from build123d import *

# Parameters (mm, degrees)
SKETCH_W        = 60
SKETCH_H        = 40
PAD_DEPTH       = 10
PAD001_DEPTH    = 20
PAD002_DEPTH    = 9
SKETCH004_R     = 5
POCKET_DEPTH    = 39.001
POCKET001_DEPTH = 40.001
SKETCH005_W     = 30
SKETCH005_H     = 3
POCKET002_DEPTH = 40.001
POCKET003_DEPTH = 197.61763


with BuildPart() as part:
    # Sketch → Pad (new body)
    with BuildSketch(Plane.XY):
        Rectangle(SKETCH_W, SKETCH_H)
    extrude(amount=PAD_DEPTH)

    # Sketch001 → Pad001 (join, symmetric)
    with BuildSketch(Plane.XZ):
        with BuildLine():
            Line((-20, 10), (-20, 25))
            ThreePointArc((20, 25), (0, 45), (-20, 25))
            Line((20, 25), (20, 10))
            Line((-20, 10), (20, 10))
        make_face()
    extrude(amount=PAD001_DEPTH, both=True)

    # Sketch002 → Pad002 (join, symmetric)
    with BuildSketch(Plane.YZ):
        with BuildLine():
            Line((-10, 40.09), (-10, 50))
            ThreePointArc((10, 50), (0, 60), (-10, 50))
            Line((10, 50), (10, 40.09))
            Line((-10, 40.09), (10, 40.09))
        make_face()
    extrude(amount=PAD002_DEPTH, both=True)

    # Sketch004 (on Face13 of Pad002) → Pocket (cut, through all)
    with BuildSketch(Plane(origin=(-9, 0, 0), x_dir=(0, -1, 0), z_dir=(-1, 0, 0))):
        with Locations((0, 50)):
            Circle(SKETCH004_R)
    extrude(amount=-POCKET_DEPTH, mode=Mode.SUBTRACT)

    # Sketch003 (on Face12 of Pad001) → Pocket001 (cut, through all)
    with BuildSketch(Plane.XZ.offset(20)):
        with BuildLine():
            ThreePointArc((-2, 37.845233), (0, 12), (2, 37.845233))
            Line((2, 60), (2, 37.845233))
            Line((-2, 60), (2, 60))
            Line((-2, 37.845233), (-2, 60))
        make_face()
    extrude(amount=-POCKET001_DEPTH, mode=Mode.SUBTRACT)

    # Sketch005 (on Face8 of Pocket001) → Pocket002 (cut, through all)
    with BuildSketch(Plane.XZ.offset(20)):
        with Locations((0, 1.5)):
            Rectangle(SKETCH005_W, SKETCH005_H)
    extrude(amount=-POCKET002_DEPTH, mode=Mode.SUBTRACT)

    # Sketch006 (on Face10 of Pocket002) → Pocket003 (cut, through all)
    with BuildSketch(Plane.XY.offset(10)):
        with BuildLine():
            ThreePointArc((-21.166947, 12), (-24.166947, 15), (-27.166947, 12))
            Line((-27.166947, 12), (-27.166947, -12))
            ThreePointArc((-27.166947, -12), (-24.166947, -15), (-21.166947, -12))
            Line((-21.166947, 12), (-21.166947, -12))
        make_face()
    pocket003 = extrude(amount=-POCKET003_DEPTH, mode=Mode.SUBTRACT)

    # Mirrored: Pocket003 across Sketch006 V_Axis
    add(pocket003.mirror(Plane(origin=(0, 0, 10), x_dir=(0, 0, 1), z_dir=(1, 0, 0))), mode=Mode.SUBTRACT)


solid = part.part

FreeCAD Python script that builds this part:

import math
import FreeCAD as App
import Part
import Sketcher
from FreeCAD import Vector


def add_polygon(sketch, points):
    """Adds a closed chain of lines whose ends are joined by coincident constraints."""
    first, n = sketch.GeometryCount, len(points)
    for a, b in zip(points, points[1:] + points[:1]):
        sketch.addGeometry(Part.LineSegment(App.Vector(*a, 0), App.Vector(*b, 0)), False)
    for i in range(n):
        sketch.addConstraint(Sketcher.Constraint("Coincident", first + i, 2, first + (i + 1) % n, 1))

doc = App.newDocument("Part")
body = doc.addObject("PartDesign::Body", "Body")

sketch1 = body.newObject("Sketcher::SketchObject", "Sketch")
sketch1.AttachmentSupport = (doc.getObject("XY_Plane"), [""])
sketch1.MapMode = "FlatFace"
add_polygon(sketch1, [(-30, 20), (-30, -20), (30, -20), (30, 20)])
sketch1.addConstraint(Sketcher.Constraint("Vertical", 0))
sketch1.addConstraint(Sketcher.Constraint("Horizontal", 1))
sketch1.addConstraint(Sketcher.Constraint("Vertical", 2))
sketch1.addConstraint(Sketcher.Constraint("Horizontal", 3))
sketch1.addConstraint(Sketcher.Constraint("Symmetric", 0, 2, 2, 2, -1, 1))
sketch1.addConstraint(Sketcher.Constraint("DistanceX", 1, 1, 1, 2, 60.0))
sketch1.addConstraint(Sketcher.Constraint("DistanceY", 0, 2, 0, 1, 40.0))
pad1 = body.newObject("PartDesign::Pad", "Pad")
pad1.Profile = sketch1
pad1.Length = 10

sketch2 = body.newObject("Sketcher::SketchObject", "Sketch001")
sketch2.AttachmentSupport = (doc.getObject("XZ_Plane"), [""])
sketch2.MapMode = "FlatFace"
sketch2.addGeometry(Part.LineSegment(Vector(-20, 25, 0), Vector(-20, 10, 0)), False)
sketch2.addGeometry(Part.LineSegment(Vector(-20, 10, 0), Vector(20, 10, 0)), False)
sketch2.addGeometry(Part.LineSegment(Vector(20, 10, 0), Vector(20, 25, 0)), False)
sketch2.addGeometry(Part.ArcOfCircle(Part.Circle(Vector(0, 25, 0), Vector(0, 0, 1), 20), math.radians(0), math.radians(180)), False)
sketch2.addConstraint(Sketcher.Constraint("Coincident", 0, 2, 1, 1))
sketch2.addConstraint(Sketcher.Constraint("Coincident", 1, 2, 2, 1))
sketch2.addConstraint(Sketcher.Constraint("Tangent", 2, 2, 3, 1))
sketch2.addConstraint(Sketcher.Constraint("Tangent", 3, 2, 0, 1))
sketch2.addConstraint(Sketcher.Constraint("Vertical", 0))
sketch2.addConstraint(Sketcher.Constraint("Horizontal", 1))
sketch2.addConstraint(Sketcher.Constraint("Vertical", 2))
sketch2.addConstraint(Sketcher.Constraint("PointOnObject", 3, 3, -2))
sketch2.addConstraint(Sketcher.Constraint("Radius", 3, 20.0))
sketch2.addConstraint(Sketcher.Constraint("DistanceY", 0, 2, 0, 1, 15.0))
sketch2.addConstraint(Sketcher.Constraint("DistanceY", -1, 1, 3, 3, 25.0))
pad2 = body.newObject("PartDesign::Pad", "Pad001")
pad2.Profile = sketch2
pad2.Length = 40
pad2.Midplane = True

sketch3 = body.newObject("Sketcher::SketchObject", "Sketch002")
sketch3.AttachmentSupport = (doc.getObject("YZ_Plane"), [""])
sketch3.MapMode = "FlatFace"
sketch3.addGeometry(Part.LineSegment(Vector(-10, 50, 0), Vector(-10, 40.09, 0)), False)
sketch3.addGeometry(Part.LineSegment(Vector(-10, 40.09, 0), Vector(10, 40.09, 0)), False)
sketch3.addGeometry(Part.LineSegment(Vector(10, 40.09, 0), Vector(10, 50, 0)), False)
sketch3.addGeometry(Part.ArcOfCircle(Part.Circle(Vector(0, 50, 0), Vector(0, 0, 1), 10), math.radians(0), math.radians(180)), False)
sketch3.addConstraint(Sketcher.Constraint("Coincident", 0, 2, 1, 1))
sketch3.addConstraint(Sketcher.Constraint("Coincident", 1, 2, 2, 1))
sketch3.addConstraint(Sketcher.Constraint("Tangent", 2, 2, 3, 1))
sketch3.addConstraint(Sketcher.Constraint("Tangent", 3, 2, 0, 1))
sketch3.addConstraint(Sketcher.Constraint("Vertical", 0))
sketch3.addConstraint(Sketcher.Constraint("Horizontal", 1))
sketch3.addConstraint(Sketcher.Constraint("Vertical", 2))
sketch3.addConstraint(Sketcher.Constraint("PointOnObject", 3, 3, -2))
sketch3.addConstraint(Sketcher.Constraint("Radius", 3, 10.0))
sketch3.addConstraint(Sketcher.Constraint("DistanceY", -1, 1, 3, 3, 50.0))
sketch3.addConstraint(Sketcher.Constraint("DistanceY", 0, 2, 0, 1, 9.91))
pad3 = body.newObject("PartDesign::Pad", "Pad002")
pad3.Profile = sketch3
pad3.Length = 18
pad3.Midplane = True

sketch4 = body.newObject("Sketcher::SketchObject", "Sketch003")
sketch4.AttachmentSupport = (doc.getObject("YZ_Plane"), [""])
sketch4.MapMode = "FlatFace"
sketch4.AttachmentOffset = App.Placement(Vector(0, 0, -9), App.Rotation())
sketch4.addGeometry(Part.Circle(Vector(0, 50, 0), Vector(0, 0, 1), 5), False)
sketch4.addConstraint(Sketcher.Constraint("PointOnObject", 0, 3, -2))
sketch4.addConstraint(Sketcher.Constraint("Diameter", 0, 10.0))
sketch4.addConstraint(Sketcher.Constraint("DistanceY", -1, 1, 0, 3, 50.0))
pocket1 = body.newObject("PartDesign::Pocket", "Pocket")
pocket1.Profile = sketch4
pocket1.Type = "ThroughAll"
pocket1.Reversed = True

sketch5 = body.newObject("Sketcher::SketchObject", "Sketch004")
sketch5.AttachmentSupport = (doc.getObject("XZ_Plane"), [""])
sketch5.MapMode = "FlatFace"
sketch5.AttachmentOffset = App.Placement(Vector(0, 0, 20), App.Rotation())
sketch5.addGeometry(Part.ArcOfCircle(Part.Circle(Vector(0, 25, 0), Vector(0, 0, 1), 13), math.radians(98.849883), math.radians(441.150117)), False)
sketch5.addGeometry(Part.LineSegment(Vector(2, 37.845233, 0), Vector(2, 60, 0)), False)
sketch5.addGeometry(Part.LineSegment(Vector(2, 60, 0), Vector(-2, 60, 0)), False)
sketch5.addGeometry(Part.LineSegment(Vector(-2, 60, 0), Vector(-2, 37.845233, 0)), False)
sketch5.addConstraint(Sketcher.Constraint("Coincident", 0, 2, 1, 1))
sketch5.addConstraint(Sketcher.Constraint("Coincident", 1, 2, 2, 1))
sketch5.addConstraint(Sketcher.Constraint("Coincident", 2, 2, 3, 1))
sketch5.addConstraint(Sketcher.Constraint("Coincident", 3, 2, 0, 1))
sketch5.addConstraint(Sketcher.Constraint("Vertical", 1))
sketch5.addConstraint(Sketcher.Constraint("Horizontal", 2))
sketch5.addConstraint(Sketcher.Constraint("Vertical", 3))
sketch5.addConstraint(Sketcher.Constraint("Symmetric", 0, 2, 3, 2, -2))
sketch5.addConstraint(Sketcher.Constraint("Radius", 0, 13.0))
sketch5.addConstraint(Sketcher.Constraint("DistanceX", 2, 2, 2, 1, 4.0))
sketch5.addConstraint(Sketcher.Constraint("DistanceY", -1, 1, 0, 3, 25.0))
sketch5.addConstraint(Sketcher.Constraint("DistanceY", -1, 1, 1, 2, 60.0))
pocket2 = body.newObject("PartDesign::Pocket", "Pocket001")
pocket2.Profile = sketch5
pocket2.Type = "ThroughAll"

sketch6 = body.newObject("Sketcher::SketchObject", "Sketch005")
sketch6.AttachmentSupport = (doc.getObject("XZ_Plane"), [""])
sketch6.MapMode = "FlatFace"
sketch6.AttachmentOffset = App.Placement(Vector(0, 0, 20), App.Rotation())
add_polygon(sketch6, [(-15, 3), (-15, 0), (15, 0), (15, 3)])
sketch6.addConstraint(Sketcher.Constraint("Vertical", 0))
sketch6.addConstraint(Sketcher.Constraint("Horizontal", 1))
sketch6.addConstraint(Sketcher.Constraint("Vertical", 2))
sketch6.addConstraint(Sketcher.Constraint("Horizontal", 3))
sketch6.addConstraint(Sketcher.Constraint("Symmetric", 0, 2, 1, 2, -1, 1))
sketch6.addConstraint(Sketcher.Constraint("DistanceX", 1, 1, 1, 2, 30.0))
sketch6.addConstraint(Sketcher.Constraint("DistanceY", 0, 2, 0, 1, 3.0))
pocket3 = body.newObject("PartDesign::Pocket", "Pocket002")
pocket3.Profile = sketch6
pocket3.Type = "ThroughAll"

sketch7 = body.newObject("Sketcher::SketchObject", "Sketch006")
sketch7.AttachmentSupport = (doc.getObject("XY_Plane"), [""])
sketch7.MapMode = "FlatFace"
sketch7.AttachmentOffset = App.Placement(Vector(0, 0, 10), App.Rotation())
sketch7.addGeometry(Part.ArcOfCircle(Part.Circle(Vector(-24.166947, 12, 0), Vector(0, 0, 1), 3), math.radians(0), math.radians(180)), False)
sketch7.addGeometry(Part.LineSegment(Vector(-27.166947, 12, 0), Vector(-27.166947, -12, 0)), False)
sketch7.addGeometry(Part.ArcOfCircle(Part.Circle(Vector(-24.166947, -12, 0), Vector(0, 0, 1), 3), math.radians(180), math.radians(360)), False)
sketch7.addGeometry(Part.LineSegment(Vector(-21.166947, -12, 0), Vector(-21.166947, 12, 0)), False)
sketch7.addConstraint(Sketcher.Constraint("Tangent", 0, 2, 1, 1))
sketch7.addConstraint(Sketcher.Constraint("Tangent", 1, 2, 2, 1))
sketch7.addConstraint(Sketcher.Constraint("Tangent", 2, 2, 3, 1))
sketch7.addConstraint(Sketcher.Constraint("Tangent", 3, 2, 0, 1))
sketch7.addConstraint(Sketcher.Constraint("Vertical", 1))
sketch7.addConstraint(Sketcher.Constraint("Vertical", 3))
sketch7.addConstraint(Sketcher.Constraint("Radius", 0, 3.0))
sketch7.addConstraint(Sketcher.Constraint("DistanceY", 1, 2, 1, 1, 24.0))
sketch7.addConstraint(Sketcher.Constraint("DistanceY", -1, 1, 0, 3, 12.0))
sketch7.addConstraint(Sketcher.Constraint("DistanceX", 0, 3, -1, 1, 24.166947))
pocket4 = body.newObject("PartDesign::Pocket", "Pocket003")
pocket4.Profile = sketch7
pocket4.Type = "ThroughAll"
doc.recompute()

mirrored = body.newObject("PartDesign::Mirrored", "Mirrored")
mirrored.Originals = [pocket4]
mirrored.MirrorPlane = (doc.getObject("YZ_Plane"), [""])
body.Tip = mirrored

doc.recompute()
